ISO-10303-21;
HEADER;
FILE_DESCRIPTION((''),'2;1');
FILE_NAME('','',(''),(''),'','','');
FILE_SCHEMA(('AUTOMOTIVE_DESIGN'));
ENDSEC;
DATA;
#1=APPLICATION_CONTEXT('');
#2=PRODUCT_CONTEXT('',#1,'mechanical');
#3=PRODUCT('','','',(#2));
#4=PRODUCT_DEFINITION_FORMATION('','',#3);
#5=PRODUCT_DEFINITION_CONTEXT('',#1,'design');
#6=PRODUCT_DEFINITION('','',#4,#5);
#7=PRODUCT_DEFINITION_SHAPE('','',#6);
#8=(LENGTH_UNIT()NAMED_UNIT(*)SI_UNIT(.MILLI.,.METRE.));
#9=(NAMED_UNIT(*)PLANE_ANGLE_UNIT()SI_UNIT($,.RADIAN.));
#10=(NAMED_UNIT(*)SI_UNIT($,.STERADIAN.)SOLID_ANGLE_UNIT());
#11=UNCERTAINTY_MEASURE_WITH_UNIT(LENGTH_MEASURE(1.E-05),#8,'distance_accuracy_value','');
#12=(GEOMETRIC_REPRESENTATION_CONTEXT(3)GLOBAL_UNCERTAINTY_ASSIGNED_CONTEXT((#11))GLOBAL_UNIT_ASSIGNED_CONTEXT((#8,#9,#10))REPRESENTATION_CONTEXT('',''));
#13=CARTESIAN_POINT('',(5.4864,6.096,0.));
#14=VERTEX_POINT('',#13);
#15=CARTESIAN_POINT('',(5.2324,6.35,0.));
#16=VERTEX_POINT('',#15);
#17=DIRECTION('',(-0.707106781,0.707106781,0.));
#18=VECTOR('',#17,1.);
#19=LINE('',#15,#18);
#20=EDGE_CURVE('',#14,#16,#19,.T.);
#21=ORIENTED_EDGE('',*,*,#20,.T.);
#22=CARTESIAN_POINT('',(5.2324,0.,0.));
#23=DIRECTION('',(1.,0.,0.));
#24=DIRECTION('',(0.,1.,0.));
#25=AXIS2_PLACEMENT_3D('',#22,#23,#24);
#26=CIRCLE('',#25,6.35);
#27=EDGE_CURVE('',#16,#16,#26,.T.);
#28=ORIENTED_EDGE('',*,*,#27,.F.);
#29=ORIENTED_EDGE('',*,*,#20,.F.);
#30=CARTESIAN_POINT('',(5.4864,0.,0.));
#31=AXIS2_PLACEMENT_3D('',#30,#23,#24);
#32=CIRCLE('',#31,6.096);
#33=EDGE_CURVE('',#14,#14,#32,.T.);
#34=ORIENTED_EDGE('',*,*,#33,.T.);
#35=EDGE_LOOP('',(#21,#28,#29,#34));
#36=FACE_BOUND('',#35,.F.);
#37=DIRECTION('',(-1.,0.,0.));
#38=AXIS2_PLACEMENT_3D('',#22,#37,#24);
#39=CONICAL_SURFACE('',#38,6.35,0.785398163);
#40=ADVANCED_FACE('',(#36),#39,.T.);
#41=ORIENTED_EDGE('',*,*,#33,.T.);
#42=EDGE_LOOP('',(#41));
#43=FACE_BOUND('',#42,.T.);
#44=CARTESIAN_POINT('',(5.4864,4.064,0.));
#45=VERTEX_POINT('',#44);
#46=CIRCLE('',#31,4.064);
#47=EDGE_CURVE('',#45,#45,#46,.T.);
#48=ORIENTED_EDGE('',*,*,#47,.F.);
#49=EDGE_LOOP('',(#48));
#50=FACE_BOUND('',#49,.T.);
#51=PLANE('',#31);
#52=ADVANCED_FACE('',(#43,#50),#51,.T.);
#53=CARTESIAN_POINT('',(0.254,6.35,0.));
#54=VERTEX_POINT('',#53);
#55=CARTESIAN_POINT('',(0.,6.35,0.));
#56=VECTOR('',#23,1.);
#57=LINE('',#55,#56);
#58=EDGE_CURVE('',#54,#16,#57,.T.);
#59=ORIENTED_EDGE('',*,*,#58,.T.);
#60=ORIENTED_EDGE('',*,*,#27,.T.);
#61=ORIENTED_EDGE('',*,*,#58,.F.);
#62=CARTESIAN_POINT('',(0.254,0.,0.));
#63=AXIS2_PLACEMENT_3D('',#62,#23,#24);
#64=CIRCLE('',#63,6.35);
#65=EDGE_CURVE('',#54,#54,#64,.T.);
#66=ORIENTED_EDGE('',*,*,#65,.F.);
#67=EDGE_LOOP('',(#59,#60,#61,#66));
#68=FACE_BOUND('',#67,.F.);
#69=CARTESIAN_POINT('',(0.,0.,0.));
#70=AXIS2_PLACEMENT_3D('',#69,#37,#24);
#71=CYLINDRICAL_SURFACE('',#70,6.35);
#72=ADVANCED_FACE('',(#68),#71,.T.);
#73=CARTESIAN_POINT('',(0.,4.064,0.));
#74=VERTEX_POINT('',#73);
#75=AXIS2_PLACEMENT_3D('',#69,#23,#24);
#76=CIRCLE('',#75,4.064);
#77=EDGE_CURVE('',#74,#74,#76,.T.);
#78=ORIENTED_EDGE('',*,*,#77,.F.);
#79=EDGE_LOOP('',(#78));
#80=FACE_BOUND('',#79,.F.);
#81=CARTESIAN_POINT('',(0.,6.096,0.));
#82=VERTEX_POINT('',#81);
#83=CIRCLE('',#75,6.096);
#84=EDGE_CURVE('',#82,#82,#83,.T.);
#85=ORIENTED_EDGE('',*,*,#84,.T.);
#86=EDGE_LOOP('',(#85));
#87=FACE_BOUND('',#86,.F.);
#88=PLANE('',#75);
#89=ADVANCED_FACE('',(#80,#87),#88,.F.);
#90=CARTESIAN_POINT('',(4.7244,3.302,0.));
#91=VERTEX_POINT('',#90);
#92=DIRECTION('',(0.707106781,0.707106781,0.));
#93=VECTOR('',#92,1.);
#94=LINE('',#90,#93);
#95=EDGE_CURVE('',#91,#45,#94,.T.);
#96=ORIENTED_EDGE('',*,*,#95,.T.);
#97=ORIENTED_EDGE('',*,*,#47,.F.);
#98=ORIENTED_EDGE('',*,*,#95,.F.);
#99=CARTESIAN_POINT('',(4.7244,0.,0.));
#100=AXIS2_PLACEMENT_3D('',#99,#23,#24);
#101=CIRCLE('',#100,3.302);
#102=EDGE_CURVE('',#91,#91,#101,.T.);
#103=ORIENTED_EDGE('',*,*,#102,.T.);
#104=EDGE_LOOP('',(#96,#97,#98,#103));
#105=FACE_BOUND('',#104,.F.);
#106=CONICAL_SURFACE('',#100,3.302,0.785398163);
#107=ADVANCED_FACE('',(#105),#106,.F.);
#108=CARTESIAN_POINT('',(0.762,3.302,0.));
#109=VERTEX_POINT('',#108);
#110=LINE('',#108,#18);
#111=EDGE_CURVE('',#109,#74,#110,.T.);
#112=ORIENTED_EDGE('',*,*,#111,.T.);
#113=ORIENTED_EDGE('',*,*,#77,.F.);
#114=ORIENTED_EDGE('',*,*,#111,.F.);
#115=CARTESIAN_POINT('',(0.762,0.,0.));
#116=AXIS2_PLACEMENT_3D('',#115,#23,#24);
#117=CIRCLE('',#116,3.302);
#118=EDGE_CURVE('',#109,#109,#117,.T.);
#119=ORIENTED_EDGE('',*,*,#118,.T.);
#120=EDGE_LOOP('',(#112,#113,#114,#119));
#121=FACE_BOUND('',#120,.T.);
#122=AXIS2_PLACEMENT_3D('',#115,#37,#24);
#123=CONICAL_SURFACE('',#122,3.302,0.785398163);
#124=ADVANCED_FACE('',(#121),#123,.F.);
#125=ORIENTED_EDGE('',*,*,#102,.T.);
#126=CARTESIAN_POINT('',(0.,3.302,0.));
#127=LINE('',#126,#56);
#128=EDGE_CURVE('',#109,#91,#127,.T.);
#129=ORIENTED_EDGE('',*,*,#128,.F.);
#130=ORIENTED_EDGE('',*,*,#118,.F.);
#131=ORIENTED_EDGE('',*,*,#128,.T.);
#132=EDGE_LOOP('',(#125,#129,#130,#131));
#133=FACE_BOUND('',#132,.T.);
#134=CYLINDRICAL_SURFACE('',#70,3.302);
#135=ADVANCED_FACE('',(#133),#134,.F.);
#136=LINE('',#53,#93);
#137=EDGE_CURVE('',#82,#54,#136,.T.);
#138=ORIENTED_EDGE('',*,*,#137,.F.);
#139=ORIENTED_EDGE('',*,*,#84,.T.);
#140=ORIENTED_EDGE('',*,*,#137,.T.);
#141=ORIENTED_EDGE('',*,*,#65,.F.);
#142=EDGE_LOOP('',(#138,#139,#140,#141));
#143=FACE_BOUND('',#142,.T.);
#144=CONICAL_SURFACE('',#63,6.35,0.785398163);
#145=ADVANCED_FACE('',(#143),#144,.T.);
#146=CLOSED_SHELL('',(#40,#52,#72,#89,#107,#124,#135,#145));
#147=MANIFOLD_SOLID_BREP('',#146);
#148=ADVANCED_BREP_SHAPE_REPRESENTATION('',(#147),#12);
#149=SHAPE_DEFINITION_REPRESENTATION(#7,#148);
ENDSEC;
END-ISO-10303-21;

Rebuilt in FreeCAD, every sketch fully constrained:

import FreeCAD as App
import Part
import Sketcher

V = App.Vector
Q = App.Units.Quantity


def edges_at(feature, points):
    """Names of the edges that pass closest to the given points."""
    edges = feature.Shape.Edges
    near = lambda p: min(range(len(edges)), key=lambda i: edges[i].distToShape(Part.Vertex(*p))[0])
    return sorted({f"Edge{near(p) + 1}" for p in points})

doc = App.newDocument("Part")
params = doc.addObject("Spreadsheet::Sheet", "Params")
for row, (alias, value) in enumerate([
    ("sketch1_diameter", "0.5 in"),
    ("sketch1_diameter2", "0.26 in"),
    ("pad1_length", "0.216 in"),
    ("chamfer_size", "0.03 in"),
    ("chamfer2_size", "0.01 in"),
], start=1):
    params.set(f"A{row}", alias)
    params.set(f"B{row}", "=" + value)
    params.setAlias(f"B{row}", alias)

body = doc.addObject("PartDesign::Body", "Body")

sketch1 = doc.addObject("Sketcher::SketchObject", "Sketch")
body.addObject(sketch1)
sketch1.AttachmentSupport = (doc.YZ_Plane, [""])
sketch1.MapMode = "FlatFace"
sketch1.addGeometry(Part.Circle(V(0, 0, 0), V(0, 0, 1), 6.3), False)
sketch1.addGeometry(Part.Circle(V(0, 0, 0), V(0, 0, 1), 3.3), False)
sketch1.addConstraint(Sketcher.Constraint("Coincident", 0, 3, -1, 1))
sketch1.addConstraint(Sketcher.Constraint("Coincident", 1, 3, -1, 1))
sketch1.addConstraint(Sketcher.Constraint("Diameter", 0, Q("0.5 in")))
sketch1.addConstraint(Sketcher.Constraint("Diameter", 1, Q("0.26 in")))
sketch1.setExpression("Constraints[2]", "Params.sketch1_diameter")
sketch1.setExpression("Constraints[3]", "Params.sketch1_diameter2")
pad1 = doc.addObject("PartDesign::Pad", "Pad")
body.addObject(pad1)
pad1.Profile = sketch1
pad1.setExpression("Length", "Params.pad1_length")
doc.recompute()

chamfer = doc.addObject("PartDesign::Chamfer", "Chamfer")
body.addObject(chamfer)
chamfer.Base = (pad1, edges_at(pad1, [(5.486, -3.302, 0), (0, -3.302, 0)]))
chamfer.setExpression("Size", "Params.chamfer_size")
doc.recompute()

chamfer2 = doc.addObject("PartDesign::Chamfer", "Chamfer001")
body.addObject(chamfer2)
chamfer2.Base = (chamfer, edges_at(chamfer, [(0, -6.35, 0), (5.486, -6.35, 0)]))
chamfer2.setExpression("Size", "Params.chamfer2_size")

doc.recompute()
